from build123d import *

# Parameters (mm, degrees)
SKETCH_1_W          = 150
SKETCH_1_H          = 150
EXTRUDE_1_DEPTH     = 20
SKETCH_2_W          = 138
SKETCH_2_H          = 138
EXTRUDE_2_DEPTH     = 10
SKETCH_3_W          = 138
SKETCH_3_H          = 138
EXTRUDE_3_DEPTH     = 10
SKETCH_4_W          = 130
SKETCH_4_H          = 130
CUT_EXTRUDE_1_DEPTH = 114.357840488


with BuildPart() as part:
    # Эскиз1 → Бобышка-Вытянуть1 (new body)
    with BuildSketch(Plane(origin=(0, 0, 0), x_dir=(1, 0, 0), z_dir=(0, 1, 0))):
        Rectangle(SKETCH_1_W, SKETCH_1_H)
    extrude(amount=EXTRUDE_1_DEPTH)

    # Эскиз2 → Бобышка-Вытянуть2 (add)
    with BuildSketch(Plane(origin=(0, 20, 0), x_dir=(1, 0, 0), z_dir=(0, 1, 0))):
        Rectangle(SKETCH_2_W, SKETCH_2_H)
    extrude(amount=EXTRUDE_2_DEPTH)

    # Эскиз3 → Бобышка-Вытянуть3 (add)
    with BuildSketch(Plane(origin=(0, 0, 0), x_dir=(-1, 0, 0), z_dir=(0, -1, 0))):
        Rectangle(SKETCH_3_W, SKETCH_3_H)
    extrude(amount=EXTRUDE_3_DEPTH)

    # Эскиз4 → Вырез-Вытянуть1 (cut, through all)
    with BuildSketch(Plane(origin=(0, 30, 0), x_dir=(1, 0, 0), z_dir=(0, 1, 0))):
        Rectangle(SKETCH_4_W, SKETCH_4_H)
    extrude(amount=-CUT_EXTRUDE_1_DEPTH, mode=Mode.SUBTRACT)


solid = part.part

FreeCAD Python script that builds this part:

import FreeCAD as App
import Part
import Sketcher
Q = App.Units.Quantity


def add_polygon(sketch, points):
    """Adds a closed chain of lines whose ends are joined by coincident constraints."""
    first, n = sketch.GeometryCount, len(points)
    for a, b in zip(points, points[1:] + points[:1]):
        sketch.addGeometry(Part.LineSegment(App.Vector(*a, 0), App.Vector(*b, 0)), False)
    for i in range(n):
        sketch.addConstraint(Sketcher.Constraint("Coincident", first + i, 2, first + (i + 1) % n, 1))

doc = App.newDocument("Part")
body = doc.addObject("PartDesign::Body", "Body")

# Sketch on XZ plane
sketch1 = doc.addObject("Sketcher::SketchObject", "Sketch")
body.addObject(sketch1)
sketch1.AttachmentSupport = (doc.XZ_Plane, [""])
sketch1.MapMode = "FlatFace"
add_polygon(sketch1, [(-75, -75), (-75, 75), (75, 75), (75, -75)])  # lines 0-3
sketch1.addConstraint([
    Sketcher.Constraint("Vertical", 0),
    Sketcher.Constraint("Horizontal", 1),
    Sketcher.Constraint("Vertical", 2),
    Sketcher.Constraint("Horizontal", 3),
    Sketcher.Constraint("Symmetric", 0, 2, 2, 2, -1, 1),
    Sketcher.Constraint("Equal", 3, 0),
    Sketcher.Constraint("DistanceX", 1, 1, 1, 2, Q("150 mm")),
])
pad1 = doc.addObject("PartDesign::Pad", "Pad")
body.addObject(pad1)
pad1.Profile = sketch1
pad1.Length = 20
pad1.Reversed = True

# Sketch on XZ plane
sketch2 = doc.addObject("Sketcher::SketchObject", "Sketch001")
body.addObject(sketch2)
sketch2.AttachmentSupport = (doc.XZ_Plane, [""])
sketch2.MapMode = "FlatFace"
sketch2.AttachmentOffset = App.Placement(App.Vector(0, 0, -20), App.Rotation())
add_polygon(sketch2, [(-69, -69), (-69, 69), (69, 69), (69, -69)])  # lines 0-3
sketch2.addConstraint([
    Sketcher.Constraint("Vertical", 0),
    Sketcher.Constraint("Horizontal", 1),
    Sketcher.Constraint("Vertical", 2),
    Sketcher.Constraint("Horizontal", 3),
    Sketcher.Constraint("Symmetric", 0, 2, 2, 2, -1, 1),
    Sketcher.Constraint("Equal", 3, 0),
    Sketcher.Constraint("DistanceX", 1, 1, 1, 2, Q("138 mm")),
])
pad2 = doc.addObject("PartDesign::Pad", "Pad001")
body.addObject(pad2)
pad2.Profile = sketch2
pad2.Length = 10
pad2.Reversed = True

# Sketch on XZ plane
sketch3 = doc.addObject("Sketcher::SketchObject", "Sketch002")
body.addObject(sketch3)
sketch3.AttachmentSupport = (doc.XZ_Plane, [""])
sketch3.MapMode = "FlatFace"
add_polygon(sketch3, [(69, -69), (69, 69), (-69, 69), (-69, -69)])  # lines 0-3
sketch3.addConstraint([
    Sketcher.Constraint("Vertical", 0),
    Sketcher.Constraint("Horizontal", 1),
    Sketcher.Constraint("Vertical", 2),
    Sketcher.Constraint("Horizontal", 3),
    Sketcher.Constraint("Symmetric", 0, 2, 2, 2, -1, 1),
    Sketcher.Constraint("Equal", 3, 0),
    Sketcher.Constraint("DistanceX", 1, 2, 1, 1, Q("138 mm")),
])
pad3 = doc.addObject("PartDesign::Pad", "Pad002")
body.addObject(pad3)
pad3.Profile = sketch3
pad3.Length = 10

# Sketch on XZ plane
sketch4 = doc.addObject("Sketcher::SketchObject", "Sketch003")
body.addObject(sketch4)
sketch4.AttachmentSupport = (doc.XZ_Plane, [""])
sketch4.MapMode = "FlatFace"
sketch4.AttachmentOffset = App.Placement(App.Vector(0, 0, -30), App.Rotation())
add_polygon(sketch4, [(-65, -65), (-65, 65), (65, 65), (65, -65)])  # lines 0-3
sketch4.addConstraint([
    Sketcher.Constraint("Vertical", 0),
    Sketcher.Constraint("Horizontal", 1),
    Sketcher.Constraint("Vertical", 2),
    Sketcher.Constraint("Horizontal", 3),
    Sketcher.Constraint("Symmetric", 0, 2, 2, 2, -1, 1),
    Sketcher.Constraint("Equal", 3, 0),
    Sketcher.Constraint("DistanceX", 1, 1, 1, 2, Q("130 mm")),
])
pocket1 = doc.addObject("PartDesign::Pocket", "Pocket")
body.addObject(pocket1)
pocket1.Profile = sketch4
pocket1.Type = "ThroughAll"
pocket1.Reversed = True

doc.recompute()
